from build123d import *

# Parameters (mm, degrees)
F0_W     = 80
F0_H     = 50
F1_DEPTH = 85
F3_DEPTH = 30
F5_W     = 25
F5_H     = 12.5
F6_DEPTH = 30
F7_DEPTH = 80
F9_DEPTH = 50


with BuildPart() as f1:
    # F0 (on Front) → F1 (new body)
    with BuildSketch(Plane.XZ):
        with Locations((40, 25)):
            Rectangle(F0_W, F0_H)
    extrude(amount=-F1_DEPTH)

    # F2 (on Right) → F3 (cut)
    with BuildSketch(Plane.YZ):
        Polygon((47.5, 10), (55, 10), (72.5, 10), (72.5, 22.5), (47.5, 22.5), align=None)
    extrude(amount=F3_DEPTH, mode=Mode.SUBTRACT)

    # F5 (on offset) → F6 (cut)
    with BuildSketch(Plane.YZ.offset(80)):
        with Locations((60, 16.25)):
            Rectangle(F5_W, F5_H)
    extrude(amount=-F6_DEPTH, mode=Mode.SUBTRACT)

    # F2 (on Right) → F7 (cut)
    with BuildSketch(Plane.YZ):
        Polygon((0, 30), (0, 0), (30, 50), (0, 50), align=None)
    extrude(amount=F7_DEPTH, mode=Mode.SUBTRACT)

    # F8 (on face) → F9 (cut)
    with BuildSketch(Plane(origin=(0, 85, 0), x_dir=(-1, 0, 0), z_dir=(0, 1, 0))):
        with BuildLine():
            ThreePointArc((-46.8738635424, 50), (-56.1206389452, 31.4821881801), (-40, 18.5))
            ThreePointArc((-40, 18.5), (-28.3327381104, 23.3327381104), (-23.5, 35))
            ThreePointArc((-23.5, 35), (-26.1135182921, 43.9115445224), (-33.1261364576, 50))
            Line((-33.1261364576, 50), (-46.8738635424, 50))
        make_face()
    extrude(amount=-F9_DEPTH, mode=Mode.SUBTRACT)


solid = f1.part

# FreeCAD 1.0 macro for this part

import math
import FreeCAD as App
import Part
import Sketcher

V = App.Vector

doc = App.newDocument("Part")
params = doc.addObject("Spreadsheet::Sheet", "Params")
for row, (alias, value) in enumerate([
    ("sketch1_width", "80 mm"),
    ("sketch1_height", "50 mm"),
    ("pad1_length", "85 mm"),
    ("sketch2_width", "25 mm"),
    ("sketch2_height", "12.5 mm"),
    ("pocket1_length", "30 mm"),
    ("sketch3_width", "25 mm"),
    ("sketch3_height", "12.5 mm"),
    ("pocket2_length", "30 mm"),
    ("sketch4_width", "30 mm"),
    ("sketch4_height", "50 mm"),
    ("pocket3_length", "80 mm"),
    ("sketch5_radius", "16.5 mm"),
    ("pocket4_length", "50 mm"),
], start=1):
    params.set(f"A{row}", alias)
    params.set(f"B{row}", "=" + value)
    params.setAlias(f"B{row}", alias)

body = doc.addObject("PartDesign::Body", "Body")

# Sketch on XZ plane
sketch1 = body.newObject("Sketcher::SketchObject", "Sketch")
sketch1.AttachmentSupport = (doc.getObject("XZ_Plane"), [""])
sketch1.MapMode = "FlatFace"
sketch1.addGeometry([
    Part.LineSegment(V(0, 50, 0), V(0, 0, 0)),
    Part.LineSegment(V(0, 0, 0), V(80, 0, 0)),
    Part.LineSegment(V(80, 0, 0), V(80, 50, 0)),
    Part.LineSegment(V(80, 50, 0), V(0, 50, 0)),
], False)
sketch1.addConstraint([
    Sketcher.Constraint("Coincident", 0, 2, 1, 1),
    Sketcher.Constraint("Coincident", 1, 2, 2, 1),
    Sketcher.Constraint("Coincident", 2, 2, 3, 1),
    Sketcher.Constraint("Coincident", 3, 2, 0, 1),
    Sketcher.Constraint("Vertical", 0),
    Sketcher.Constraint("Horizontal", 1),
    Sketcher.Constraint("Vertical", 2),
    Sketcher.Constraint("Horizontal", 3),
    Sketcher.Constraint("Coincident", 0, 2, -1, 1),
    Sketcher.Constraint("DistanceX", 1, 1, 1, 2, 80.0),
    Sketcher.Constraint("DistanceY", 0, 2, 0, 1, 50.0),
])
sketch1.setExpression("Constraints[9]", "Params.sketch1_width")
sketch1.setExpression("Constraints[10]", "Params.sketch1_height")
pad1 = body.newObject("PartDesign::Pad", "Pad")
pad1.Profile = sketch1
pad1.setExpression("Length", "Params.pad1_length")
pad1.Reversed = True

# Sketch on YZ plane
sketch2 = body.newObject("Sketcher::SketchObject", "Sketch001")
sketch2.AttachmentSupport = (doc.getObject("YZ_Plane"), [""])
sketch2.MapMode = "FlatFace"
sketch2.addGeometry([
    Part.LineSegment(V(47.5, 10, 0), V(72.5, 10, 0)),
    Part.LineSegment(V(72.5, 10, 0), V(72.5, 22.5, 0)),
    Part.LineSegment(V(72.5, 22.5, 0), V(47.5, 22.5, 0)),
    Part.LineSegment(V(47.5, 22.5, 0), V(47.5, 10, 0)),
], False)
sketch2.addConstraint([
    Sketcher.Constraint("Coincident", 0, 2, 1, 1),
    Sketcher.Constraint("Coincident", 1, 2, 2, 1),
    Sketcher.Constraint("Coincident", 2, 2, 3, 1),
    Sketcher.Constraint("Coincident", 3, 2, 0, 1),
    Sketcher.Constraint("Horizontal", 0),
    Sketcher.Constraint("Vertical", 1),
    Sketcher.Constraint("Horizontal", 2),
    Sketcher.Constraint("Vertical", 3),
    Sketcher.Constraint("DistanceX", 0, 1, 0, 2, 25.0),
    Sketcher.Constraint("DistanceY", 1, 1, 1, 2, 12.5),
    Sketcher.Constraint("DistanceY", -1, 1, 0, 2, 10.0),
    Sketcher.Constraint("DistanceX", -1, 1, 0, 2, 72.5),
])
sketch2.setExpression("Constraints[8]", "Params.sketch2_width")
sketch2.setExpression("Constraints[9]", "Params.sketch2_height")
pocket1 = body.newObject("PartDesign::Pocket", "Pocket")
pocket1.Profile = sketch2
pocket1.setExpression("Length", "Params.pocket1_length")
pocket1.Reversed = True

# Sketch on YZ plane
sketch3 = body.newObject("Sketcher::SketchObject", "Sketch002")
sketch3.AttachmentSupport = (doc.getObject("YZ_Plane"), [""])
sketch3.MapMode = "FlatFace"
sketch3.AttachmentOffset = App.Placement(V(0, 0, 80), App.Rotation())
sketch3.addGeometry([
    Part.LineSegment(V(47.5, 22.5, 0), V(47.5, 10, 0)),
    Part.LineSegment(V(47.5, 10, 0), V(72.5, 10, 0)),
    Part.LineSegment(V(72.5, 10, 0), V(72.5, 22.5, 0)),
    Part.LineSegment(V(72.5, 22.5, 0), V(47.5, 22.5, 0)),
], False)
sketch3.addConstraint([
    Sketcher.Constraint("Coincident", 0, 2, 1, 1),
    Sketcher.Constraint("Coincident", 1, 2, 2, 1),
    Sketcher.Constraint("Coincident", 2, 2, 3, 1),
    Sketcher.Constraint("Coincident", 3, 2, 0, 1),
    Sketcher.Constraint("Vertical", 0),
    Sketcher.Constraint("Horizontal", 1),
    Sketcher.Constraint("Vertical", 2),
    Sketcher.Constraint("Horizontal", 3),
    Sketcher.Constraint("DistanceX", 1, 1, 1, 2, 25.0),
    Sketcher.Constraint("DistanceY", 0, 2, 0, 1, 12.5),
    Sketcher.Constraint("DistanceY", -1, 1, 0, 2, 10.0),
    Sketcher.Constraint("DistanceX", -1, 1, 0, 2, 47.5),
])
sketch3.setExpression("Constraints[8]", "Params.sketch3_width")
sketch3.setExpression("Constraints[9]", "Params.sketch3_height")
pocket2 = body.newObject("PartDesign::Pocket", "Pocket001")
pocket2.Profile = sketch3
pocket2.setExpression("Length", "Params.pocket2_length")

# Sketch on YZ plane
sketch4 = body.newObject("Sketcher::SketchObject", "Sketch003")
sketch4.AttachmentSupport = (doc.getObject("YZ_Plane"), [""])
sketch4.MapMode = "FlatFace"
sketch4.addGeometry([
    Part.LineSegment(V(0, 0, 0), V(30, 50, 0)),
    Part.LineSegment(V(30, 50, 0), V(0, 50, 0)),
    Part.LineSegment(V(0, 50, 0), V(0, 0, 0)),
], False)
sketch4.addConstraint([
    Sketcher.Constraint("Coincident", 0, 2, 1, 1),
    Sketcher.Constraint("Coincident", 1, 2, 2, 1),
    Sketcher.Constraint("Coincident", 2, 2, 0, 1),
    Sketcher.Constraint("Horizontal", 1),
    Sketcher.Constraint("Vertical", 2),
    Sketcher.Constraint("Coincident", 2, 2, -1, 1),
    Sketcher.Constraint("DistanceX", 1, 2, 1, 1, 30.0),
    Sketcher.Constraint("DistanceY", 2, 2, 2, 1, 50.0),
])
sketch4.setExpression("Constraints[6]", "Params.sketch4_width")
sketch4.setExpression("Constraints[7]", "Params.sketch4_height")
pocket3 = body.newObject("PartDesign::Pocket", "Pocket002")
pocket3.Profile = sketch4
pocket3.setExpression("Length", "Params.pocket3_length")
pocket3.Reversed = True

# Sketch on XZ plane
sketch5 = body.newObject("Sketcher::SketchObject", "Sketch004")
sketch5.AttachmentSupport = (doc.getObject("XZ_Plane"), [""])
sketch5.MapMode = "FlatFace"
sketch5.AttachmentOffset = App.Placement(V(0, 0, -85), App.Rotation())
sketch5.addGeometry([
    Part.ArcOfCircle(Part.Circle(V(40, 35, 0), V(0, 0, 1), 16.5), math.radians(-90), math.radians(65.380023)),
    Part.ArcOfCircle(Part.Circle(V(40, 35, 0), V(0, 0, 1), 16.5), math.radians(180), math.radians(270)),
    Part.ArcOfCircle(Part.Circle(V(40, 35, 0), V(0, 0, 1), 16.5), math.radians(114.619977), math.radians(180)),
    Part.LineSegment(V(33.126136, 50, 0), V(46.873864, 50, 0)),
], False)
sketch5.addConstraint([
    Sketcher.Constraint("Tangent", 0, 1, 1, 2),
    Sketcher.Constraint("Tangent", 1, 1, 2, 2),
    Sketcher.Constraint("Coincident", 2, 1, 3, 1),
    Sketcher.Constraint("Coincident", 3, 2, 0, 2),
    Sketcher.Constraint("Horizontal", 3),
    Sketcher.Constraint("Coincident", 2, 3, 0, 3),
    Sketcher.Constraint("Horizontal", 2, 3, 1, 1),
    Sketcher.Constraint("Vertical", 2, 3, 0, 1),
    Sketcher.Constraint("Radius", 0, 16.5),
    Sketcher.Constraint("DistanceX", -1, 1, 0, 3, 40.0),
    Sketcher.Constraint("DistanceY", -1, 1, 0, 3, 35.0),
    Sketcher.Constraint("DistanceY", -1, 1, 2, 1, 50.0),
])
sketch5.setExpression("Constraints[8]", "Params.sketch5_radius")
pocket4 = body.newObject("PartDesign::Pocket", "Pocket003")
pocket4.Profile = sketch5
pocket4.setExpression("Length", "Params.pocket4_length")
pocket4.Reversed = True

doc.recompute()
